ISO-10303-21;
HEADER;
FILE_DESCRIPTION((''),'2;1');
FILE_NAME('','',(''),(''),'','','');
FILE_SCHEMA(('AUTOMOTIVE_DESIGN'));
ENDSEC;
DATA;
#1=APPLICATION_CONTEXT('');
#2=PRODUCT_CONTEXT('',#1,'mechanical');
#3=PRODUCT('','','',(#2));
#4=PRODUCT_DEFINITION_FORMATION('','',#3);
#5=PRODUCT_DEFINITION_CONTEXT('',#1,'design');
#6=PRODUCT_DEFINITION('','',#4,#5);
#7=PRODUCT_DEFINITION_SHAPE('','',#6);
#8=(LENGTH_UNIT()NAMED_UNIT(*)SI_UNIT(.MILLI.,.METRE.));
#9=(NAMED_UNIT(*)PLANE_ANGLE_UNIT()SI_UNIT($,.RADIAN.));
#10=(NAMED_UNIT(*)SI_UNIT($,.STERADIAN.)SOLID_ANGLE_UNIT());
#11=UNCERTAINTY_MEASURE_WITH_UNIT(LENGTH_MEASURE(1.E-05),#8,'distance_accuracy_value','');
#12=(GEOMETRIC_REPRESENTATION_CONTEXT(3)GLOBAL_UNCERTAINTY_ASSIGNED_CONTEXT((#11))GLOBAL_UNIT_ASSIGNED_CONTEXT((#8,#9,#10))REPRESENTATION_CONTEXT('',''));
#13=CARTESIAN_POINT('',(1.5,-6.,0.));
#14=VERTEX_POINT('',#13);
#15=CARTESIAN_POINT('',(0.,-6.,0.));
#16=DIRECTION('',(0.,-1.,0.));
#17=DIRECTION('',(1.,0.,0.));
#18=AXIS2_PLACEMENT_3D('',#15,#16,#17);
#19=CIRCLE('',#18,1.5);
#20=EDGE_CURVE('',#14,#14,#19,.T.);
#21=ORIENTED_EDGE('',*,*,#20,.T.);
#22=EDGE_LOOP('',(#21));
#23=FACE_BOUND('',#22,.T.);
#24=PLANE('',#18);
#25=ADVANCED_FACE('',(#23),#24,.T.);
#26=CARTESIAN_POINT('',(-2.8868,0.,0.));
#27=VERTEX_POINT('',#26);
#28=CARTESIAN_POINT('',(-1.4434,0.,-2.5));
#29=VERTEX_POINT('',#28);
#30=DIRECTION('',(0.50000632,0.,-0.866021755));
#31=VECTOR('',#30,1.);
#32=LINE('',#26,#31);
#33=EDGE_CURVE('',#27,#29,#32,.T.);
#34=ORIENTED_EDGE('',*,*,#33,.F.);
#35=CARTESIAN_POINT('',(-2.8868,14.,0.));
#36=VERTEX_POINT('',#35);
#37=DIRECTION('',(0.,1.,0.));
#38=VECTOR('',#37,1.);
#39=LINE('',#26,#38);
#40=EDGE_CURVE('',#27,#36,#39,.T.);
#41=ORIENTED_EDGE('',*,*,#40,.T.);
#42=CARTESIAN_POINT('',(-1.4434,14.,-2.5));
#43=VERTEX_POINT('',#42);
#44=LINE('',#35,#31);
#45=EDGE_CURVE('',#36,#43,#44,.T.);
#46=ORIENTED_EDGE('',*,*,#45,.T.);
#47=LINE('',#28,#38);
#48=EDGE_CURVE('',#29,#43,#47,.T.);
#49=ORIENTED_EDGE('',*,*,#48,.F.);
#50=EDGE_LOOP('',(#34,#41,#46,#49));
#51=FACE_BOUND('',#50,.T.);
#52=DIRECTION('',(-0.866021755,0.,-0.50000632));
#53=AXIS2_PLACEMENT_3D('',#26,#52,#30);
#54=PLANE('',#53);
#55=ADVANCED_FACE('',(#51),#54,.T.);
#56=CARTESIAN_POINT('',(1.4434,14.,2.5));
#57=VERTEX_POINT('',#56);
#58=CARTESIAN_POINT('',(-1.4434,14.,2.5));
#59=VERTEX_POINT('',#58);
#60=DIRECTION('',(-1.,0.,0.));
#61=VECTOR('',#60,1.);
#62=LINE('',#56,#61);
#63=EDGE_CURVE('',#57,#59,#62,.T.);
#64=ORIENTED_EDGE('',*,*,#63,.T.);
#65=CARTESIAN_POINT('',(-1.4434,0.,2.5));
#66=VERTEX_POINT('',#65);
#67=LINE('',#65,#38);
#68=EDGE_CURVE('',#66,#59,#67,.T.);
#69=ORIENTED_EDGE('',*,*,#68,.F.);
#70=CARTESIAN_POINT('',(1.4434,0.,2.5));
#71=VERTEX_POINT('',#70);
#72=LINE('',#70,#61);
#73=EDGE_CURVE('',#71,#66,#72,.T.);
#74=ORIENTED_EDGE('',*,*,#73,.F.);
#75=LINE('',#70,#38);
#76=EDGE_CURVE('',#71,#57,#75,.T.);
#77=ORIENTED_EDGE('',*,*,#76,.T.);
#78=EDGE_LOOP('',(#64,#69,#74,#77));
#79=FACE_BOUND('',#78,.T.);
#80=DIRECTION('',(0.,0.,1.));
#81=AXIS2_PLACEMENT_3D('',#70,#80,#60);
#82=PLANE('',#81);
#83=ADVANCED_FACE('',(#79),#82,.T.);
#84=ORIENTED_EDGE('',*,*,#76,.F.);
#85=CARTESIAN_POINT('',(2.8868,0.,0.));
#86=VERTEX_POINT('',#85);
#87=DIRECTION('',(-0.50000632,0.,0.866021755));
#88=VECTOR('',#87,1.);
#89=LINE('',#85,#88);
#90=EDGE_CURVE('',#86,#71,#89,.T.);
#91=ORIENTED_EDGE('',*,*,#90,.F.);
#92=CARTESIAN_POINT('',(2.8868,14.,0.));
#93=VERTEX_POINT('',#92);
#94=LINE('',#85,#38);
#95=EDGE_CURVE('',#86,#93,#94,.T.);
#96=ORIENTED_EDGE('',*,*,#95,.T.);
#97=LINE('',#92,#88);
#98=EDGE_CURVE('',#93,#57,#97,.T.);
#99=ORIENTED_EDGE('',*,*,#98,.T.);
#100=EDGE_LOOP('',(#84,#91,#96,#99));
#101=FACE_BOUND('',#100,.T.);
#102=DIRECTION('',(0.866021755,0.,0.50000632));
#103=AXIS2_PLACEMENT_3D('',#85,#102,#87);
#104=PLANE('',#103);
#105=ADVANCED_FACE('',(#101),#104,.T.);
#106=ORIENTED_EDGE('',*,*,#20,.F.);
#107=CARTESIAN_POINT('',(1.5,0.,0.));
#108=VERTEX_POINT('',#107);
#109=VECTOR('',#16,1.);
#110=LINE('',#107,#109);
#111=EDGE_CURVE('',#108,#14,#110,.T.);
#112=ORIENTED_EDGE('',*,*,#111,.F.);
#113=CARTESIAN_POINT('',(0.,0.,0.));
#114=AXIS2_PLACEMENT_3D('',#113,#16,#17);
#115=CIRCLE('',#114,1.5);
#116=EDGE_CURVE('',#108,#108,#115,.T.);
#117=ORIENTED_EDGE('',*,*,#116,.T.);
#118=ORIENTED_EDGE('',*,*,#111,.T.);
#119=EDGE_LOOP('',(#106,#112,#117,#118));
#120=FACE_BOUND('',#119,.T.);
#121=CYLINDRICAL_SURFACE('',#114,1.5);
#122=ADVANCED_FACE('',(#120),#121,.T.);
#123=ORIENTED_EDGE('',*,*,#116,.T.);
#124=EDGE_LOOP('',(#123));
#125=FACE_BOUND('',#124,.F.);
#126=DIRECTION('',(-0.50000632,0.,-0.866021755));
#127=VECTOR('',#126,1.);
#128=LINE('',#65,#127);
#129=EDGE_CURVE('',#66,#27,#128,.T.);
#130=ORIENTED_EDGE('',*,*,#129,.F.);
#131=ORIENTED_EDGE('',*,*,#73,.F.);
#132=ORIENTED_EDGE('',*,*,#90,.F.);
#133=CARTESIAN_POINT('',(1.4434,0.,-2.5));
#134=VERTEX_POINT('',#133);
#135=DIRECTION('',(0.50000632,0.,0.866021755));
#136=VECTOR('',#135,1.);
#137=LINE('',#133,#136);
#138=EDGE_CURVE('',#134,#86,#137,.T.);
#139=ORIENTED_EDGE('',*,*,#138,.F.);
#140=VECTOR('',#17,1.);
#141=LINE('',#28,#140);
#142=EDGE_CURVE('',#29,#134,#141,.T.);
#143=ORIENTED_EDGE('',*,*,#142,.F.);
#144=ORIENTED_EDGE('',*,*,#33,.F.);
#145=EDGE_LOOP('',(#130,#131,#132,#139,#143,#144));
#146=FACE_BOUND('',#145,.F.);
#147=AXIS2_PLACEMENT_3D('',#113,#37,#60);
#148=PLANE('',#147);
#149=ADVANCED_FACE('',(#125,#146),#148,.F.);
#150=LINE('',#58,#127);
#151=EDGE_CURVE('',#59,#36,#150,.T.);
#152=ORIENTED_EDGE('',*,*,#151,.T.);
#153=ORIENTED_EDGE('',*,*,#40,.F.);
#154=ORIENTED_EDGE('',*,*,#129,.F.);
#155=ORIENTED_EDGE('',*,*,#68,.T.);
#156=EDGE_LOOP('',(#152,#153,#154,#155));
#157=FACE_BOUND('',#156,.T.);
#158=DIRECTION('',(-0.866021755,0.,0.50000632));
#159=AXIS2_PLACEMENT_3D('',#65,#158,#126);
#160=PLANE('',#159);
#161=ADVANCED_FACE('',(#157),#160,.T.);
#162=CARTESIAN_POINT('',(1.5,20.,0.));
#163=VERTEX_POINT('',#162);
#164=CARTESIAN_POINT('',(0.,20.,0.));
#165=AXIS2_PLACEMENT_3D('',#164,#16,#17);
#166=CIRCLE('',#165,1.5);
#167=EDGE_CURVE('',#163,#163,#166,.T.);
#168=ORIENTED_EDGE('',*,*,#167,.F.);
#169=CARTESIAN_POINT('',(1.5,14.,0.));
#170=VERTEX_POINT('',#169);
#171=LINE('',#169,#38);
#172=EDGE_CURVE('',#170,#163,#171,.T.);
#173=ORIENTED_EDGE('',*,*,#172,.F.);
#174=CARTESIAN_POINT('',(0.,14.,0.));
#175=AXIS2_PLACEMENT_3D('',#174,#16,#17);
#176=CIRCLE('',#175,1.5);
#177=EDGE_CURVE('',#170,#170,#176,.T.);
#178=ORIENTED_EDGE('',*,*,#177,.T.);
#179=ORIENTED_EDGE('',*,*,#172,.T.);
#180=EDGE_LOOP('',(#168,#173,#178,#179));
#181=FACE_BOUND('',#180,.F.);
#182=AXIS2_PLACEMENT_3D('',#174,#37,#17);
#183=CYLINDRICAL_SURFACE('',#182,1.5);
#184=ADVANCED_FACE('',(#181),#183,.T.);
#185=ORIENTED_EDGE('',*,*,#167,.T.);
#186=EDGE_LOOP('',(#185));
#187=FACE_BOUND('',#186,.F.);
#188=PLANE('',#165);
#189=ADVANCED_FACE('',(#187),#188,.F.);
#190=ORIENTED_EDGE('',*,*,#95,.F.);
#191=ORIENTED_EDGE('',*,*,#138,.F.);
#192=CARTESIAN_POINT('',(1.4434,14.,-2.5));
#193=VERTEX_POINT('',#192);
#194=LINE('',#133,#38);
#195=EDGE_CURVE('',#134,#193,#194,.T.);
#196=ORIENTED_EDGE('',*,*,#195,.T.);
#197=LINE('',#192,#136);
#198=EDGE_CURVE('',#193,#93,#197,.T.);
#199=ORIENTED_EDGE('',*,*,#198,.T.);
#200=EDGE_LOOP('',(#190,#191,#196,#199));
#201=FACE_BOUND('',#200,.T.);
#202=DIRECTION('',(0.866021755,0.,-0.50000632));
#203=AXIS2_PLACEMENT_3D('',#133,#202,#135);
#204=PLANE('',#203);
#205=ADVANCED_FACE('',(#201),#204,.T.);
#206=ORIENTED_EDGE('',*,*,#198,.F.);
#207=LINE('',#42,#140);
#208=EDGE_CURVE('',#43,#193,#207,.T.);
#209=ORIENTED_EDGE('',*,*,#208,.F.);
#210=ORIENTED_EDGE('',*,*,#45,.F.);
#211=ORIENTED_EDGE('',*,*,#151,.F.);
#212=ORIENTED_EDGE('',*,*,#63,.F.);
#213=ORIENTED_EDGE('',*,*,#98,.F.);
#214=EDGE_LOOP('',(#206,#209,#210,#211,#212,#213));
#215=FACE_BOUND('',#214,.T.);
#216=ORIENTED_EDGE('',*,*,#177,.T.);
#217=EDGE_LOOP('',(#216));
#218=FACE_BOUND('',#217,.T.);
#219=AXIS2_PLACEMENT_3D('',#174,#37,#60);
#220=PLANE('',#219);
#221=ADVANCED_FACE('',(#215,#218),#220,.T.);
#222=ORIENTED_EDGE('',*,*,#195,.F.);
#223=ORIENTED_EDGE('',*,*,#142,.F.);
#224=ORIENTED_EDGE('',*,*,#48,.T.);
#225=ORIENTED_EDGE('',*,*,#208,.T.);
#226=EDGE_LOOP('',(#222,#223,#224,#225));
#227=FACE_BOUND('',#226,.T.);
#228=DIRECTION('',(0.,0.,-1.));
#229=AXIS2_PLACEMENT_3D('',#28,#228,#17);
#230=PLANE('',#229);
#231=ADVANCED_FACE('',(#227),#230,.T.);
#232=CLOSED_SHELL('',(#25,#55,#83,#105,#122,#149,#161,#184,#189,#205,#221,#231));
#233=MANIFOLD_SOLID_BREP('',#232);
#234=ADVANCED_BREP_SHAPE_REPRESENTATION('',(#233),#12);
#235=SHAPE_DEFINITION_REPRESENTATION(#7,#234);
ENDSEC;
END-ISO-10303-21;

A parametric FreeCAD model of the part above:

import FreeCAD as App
import Part
import Sketcher

V = App.Vector
Q = App.Units.Quantity


def add_polygon(sketch, points):
    """Adds a closed chain of lines whose ends are joined by coincident constraints."""
    first, n = sketch.GeometryCount, len(points)
    for a, b in zip(points, points[1:] + points[:1]):
        sketch.addGeometry(Part.LineSegment(App.Vector(*a, 0), App.Vector(*b, 0)), False)
    for i in range(n):
        sketch.addConstraint(Sketcher.Constraint("Coincident", first + i, 2, first + (i + 1) % n, 1))

doc = App.newDocument("Part")
body = doc.addObject("PartDesign::Body", "Body")

# Sketch on XZ plane
sketch1 = body.newObject("Sketcher::SketchObject", "Sketch")
sketch1.AttachmentSupport = (doc.getObject("XZ_Plane"), [""])
sketch1.MapMode = "FlatFace"
add_polygon(sketch1, [(1.4, 2.5), (2.9, 0), (1.4, -2.5), (-1.4, -2.5), (-2.9, 0), (-1.4, 2.5)])  # lines 0-5
sketch1.addConstraint(Sketcher.Constraint("Horizontal", 2))
sketch1.addConstraint(Sketcher.Constraint("Horizontal", 5))
sketch1.addConstraint(Sketcher.Constraint("Symmetric", 0, 2, 3, 2, -1, 1))
sketch1.addConstraint(Sketcher.Constraint("Symmetric", 1, 2, 4, 2, -1, 1))
sketch1.addConstraint(Sketcher.Constraint("PointOnObject", 0, 2, -1))
sketch1.addConstraint(Sketcher.Constraint("Parallel", 0, 3))
sketch1.addConstraint(Sketcher.Constraint("Vertical", 2, 2, 4, 2))
sketch1.addConstraint(Sketcher.Constraint("DistanceY", 2, 2, 4, 2, Q("5 mm")))
sketch1.addConstraint(Sketcher.Constraint("Angle", 0, Q("-59.9996 deg")))
sketch1.addConstraint(Sketcher.Constraint("DistanceX", 2, 2, 2, 1, Q("2.8868 mm")))
pad1 = body.newObject("PartDesign::Pad", "Pad")
pad1.Profile = sketch1
pad1.Length = 14
pad1.Reversed = True

# Sketch on XY plane
sketch2 = body.newObject("Sketcher::SketchObject", "Sketch001")
sketch2.AttachmentSupport = (doc.getObject("XY_Plane"), [""])
sketch2.MapMode = "FlatFace"
add_polygon(sketch2, [(1.5, 0), (0, 0), (0, -6), (1.5, -6)])  # lines 0-3
add_polygon(sketch2, [(0, 14), (1.5, 14), (1.5, 20), (0, 20)])  # lines 4-7
sketch2.addConstraint(Sketcher.Constraint("Horizontal", 0))
sketch2.addConstraint(Sketcher.Constraint("Vertical", 1))
sketch2.addConstraint(Sketcher.Constraint("Horizontal", 2))
sketch2.addConstraint(Sketcher.Constraint("Vertical", 3))
sketch2.addConstraint(Sketcher.Constraint("Horizontal", 4))
sketch2.addConstraint(Sketcher.Constraint("Vertical", 5))
sketch2.addConstraint(Sketcher.Constraint("Horizontal", 6))
sketch2.addConstraint(Sketcher.Constraint("Vertical", 7))
sketch2.addConstraint(Sketcher.Constraint("Coincident", 0, 2, -1, 1))
sketch2.addConstraint(Sketcher.Constraint("PointOnObject", 6, 2, -2))
sketch2.addConstraint(Sketcher.Constraint("Vertical", 3, 2, 4, 2))
sketch2.addConstraint(Sketcher.Constraint("Equal", 3, 5))
sketch2.addConstraint(Sketcher.Constraint("DistanceY", 1, 2, 1, 1, Q("6 mm")))
sketch2.addConstraint(Sketcher.Constraint("DistanceX", 0, 2, 0, 1, Q("1.5 mm")))
sketch2.addConstraint(Sketcher.Constraint("DistanceY", -1, 1, 4, 2, Q("14 mm")))
revolution = body.newObject("PartDesign::Revolution", "Revolution")
revolution.Profile = sketch2
revolution.ReferenceAxis = (sketch2, ["V_Axis"])
revolution.Angle = 360

doc.recompute()
